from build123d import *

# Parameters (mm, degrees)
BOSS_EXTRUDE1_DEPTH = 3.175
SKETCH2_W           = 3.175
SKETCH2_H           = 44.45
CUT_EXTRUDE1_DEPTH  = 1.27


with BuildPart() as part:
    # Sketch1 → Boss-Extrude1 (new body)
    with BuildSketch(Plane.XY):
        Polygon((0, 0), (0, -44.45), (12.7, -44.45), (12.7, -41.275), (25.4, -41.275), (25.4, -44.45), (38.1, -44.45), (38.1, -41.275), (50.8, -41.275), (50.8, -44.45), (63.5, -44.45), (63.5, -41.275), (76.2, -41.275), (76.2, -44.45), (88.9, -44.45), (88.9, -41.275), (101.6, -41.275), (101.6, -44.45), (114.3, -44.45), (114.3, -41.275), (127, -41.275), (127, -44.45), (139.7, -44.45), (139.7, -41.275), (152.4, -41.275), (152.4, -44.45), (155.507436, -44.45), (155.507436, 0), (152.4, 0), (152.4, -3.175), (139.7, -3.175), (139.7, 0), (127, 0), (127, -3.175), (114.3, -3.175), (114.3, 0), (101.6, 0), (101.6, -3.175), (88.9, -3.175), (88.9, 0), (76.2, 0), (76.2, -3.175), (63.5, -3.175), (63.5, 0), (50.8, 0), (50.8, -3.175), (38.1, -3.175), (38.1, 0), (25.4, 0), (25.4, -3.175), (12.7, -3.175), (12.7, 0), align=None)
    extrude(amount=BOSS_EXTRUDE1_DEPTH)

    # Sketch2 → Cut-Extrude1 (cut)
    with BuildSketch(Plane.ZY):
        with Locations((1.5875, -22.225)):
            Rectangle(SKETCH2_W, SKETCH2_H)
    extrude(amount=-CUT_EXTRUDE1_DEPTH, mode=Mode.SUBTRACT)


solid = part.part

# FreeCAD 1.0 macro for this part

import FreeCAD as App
import Part
import Sketcher

V = App.Vector
Q = App.Units.Quantity

doc = App.newDocument("Part")
params = doc.addObject("Spreadsheet::Sheet", "Params")
for row, (alias, value) in enumerate([
    ("sketch1_width", "0.5 in"),
    ("sketch1_height", "1.75 in"),
    ("pad1_length", "0.125 in"),
    ("sketch2_width", "1.75 in"),
    ("sketch2_height", "0.125 in"),
    ("pocket1_length", "0.05 in"),
], start=1):
    params.set(f"A{row}", alias)
    params.set(f"B{row}", "=" + value)
    params.setAlias(f"B{row}", alias)

body = doc.addObject("PartDesign::Body", "Body")

sketch1 = body.newObject("Sketcher::SketchObject", "Sketch")
sketch1.AttachmentSupport = (doc.getObject("XY_Plane"), [""])
sketch1.MapMode = "FlatFace"
sketch1.addGeometry(Part.LineSegment(V(0, 0, 0), V(0, -44.5, 0)), False)
sketch1.addGeometry(Part.LineSegment(V(0, -44.5, 0), V(12.7, -44.5, 0)), False)
sketch1.addGeometry(Part.LineSegment(V(12.7, -44.5, 0), V(12.7, -41.3, 0)), False)
sketch1.addGeometry(Part.LineSegment(V(12.7, -41.3, 0), V(25.4, -41.3, 0)), False)
sketch1.addGeometry(Part.LineSegment(V(25.4, -41.3, 0), V(25.4, -44.5, 0)), False)
sketch1.addGeometry(Part.LineSegment(V(25.4, -44.5, 0), V(38.1, -44.5, 0)), False)
sketch1.addGeometry(Part.LineSegment(V(38.1, -44.5, 0), V(38.1, -41.3, 0)), False)
sketch1.addGeometry(Part.LineSegment(V(38.1, -41.3, 0), V(50.8, -41.3, 0)), False)
sketch1.addGeometry(Part.LineSegment(V(50.8, -41.3, 0), V(50.8, -44.5, 0)), False)
sketch1.addGeometry(Part.LineSegment(V(50.8, -44.5, 0), V(63.5, -44.5, 0)), False)
sketch1.addGeometry(Part.LineSegment(V(63.5, -44.5, 0), V(63.5, -41.3, 0)), False)
sketch1.addGeometry(Part.LineSegment(V(63.5, -41.3, 0), V(76.2, -41.3, 0)), False)
sketch1.addGeometry(Part.LineSegment(V(76.2, -41.3, 0), V(76.2, -44.5, 0)), False)
sketch1.addGeometry(Part.LineSegment(V(76.2, -44.5, 0), V(88.9, -44.5, 0)), False)
sketch1.addGeometry(Part.LineSegment(V(88.9, -44.5, 0), V(88.9, -41.3, 0)), False)
sketch1.addGeometry(Part.LineSegment(V(88.9, -41.3, 0), V(101.6, -41.3, 0)), False)
sketch1.addGeometry(Part.LineSegment(V(101.6, -41.3, 0), V(101.6, -44.5, 0)), False)
sketch1.addGeometry(Part.LineSegment(V(101.6, -44.5, 0), V(114.3, -44.5, 0)), False)
sketch1.addGeometry(Part.LineSegment(V(114.3, -44.5, 0), V(114.3, -41.3, 0)), False)
sketch1.addGeometry(Part.LineSegment(V(114.3, -41.3, 0), V(127, -41.3, 0)), False)
sketch1.addGeometry(Part.LineSegment(V(127, -41.3, 0), V(127, -44.5, 0)), False)
sketch1.addGeometry(Part.LineSegment(V(127, -44.5, 0), V(139.7, -44.5, 0)), False)
sketch1.addGeometry(Part.LineSegment(V(139.7, -44.5, 0), V(139.7, -41.3, 0)), False)
sketch1.addGeometry(Part.LineSegment(V(139.7, -41.3, 0), V(152.4, -41.3, 0)), False)
sketch1.addGeometry(Part.LineSegment(V(152.4, -41.3, 0), V(152.4, -44.5, 0)), False)
sketch1.addGeometry(Part.LineSegment(V(152.4, -44.5, 0), V(155.5, -44.5, 0)), False)
sketch1.addGeometry(Part.LineSegment(V(155.5, -44.5, 0), V(155.5, 0, 0)), False)
sketch1.addGeometry(Part.LineSegment(V(155.5, 0, 0), V(152.4, 0, 0)), False)
sketch1.addGeometry(Part.LineSegment(V(152.4, 0, 0), V(152.4, -3.2, 0)), False)
sketch1.addGeometry(Part.LineSegment(V(152.4, -3.2, 0), V(139.7, -3.2, 0)), False)
sketch1.addGeometry(Part.LineSegment(V(139.7, -3.2, 0), V(139.7, 0, 0)), False)
sketch1.addGeometry(Part.LineSegment(V(139.7, 0, 0), V(127, 0, 0)), False)
sketch1.addGeometry(Part.LineSegment(V(127, 0, 0), V(127, -3.2, 0)), False)
sketch1.addGeometry(Part.LineSegment(V(127, -3.2, 0), V(114.3, -3.2, 0)), False)
sketch1.addGeometry(Part.LineSegment(V(114.3, -3.2, 0), V(114.3, 0, 0)), False)
sketch1.addGeometry(Part.LineSegment(V(114.3, 0, 0), V(101.6, 0, 0)), False)
sketch1.addGeometry(Part.LineSegment(V(101.6, 0, 0), V(101.6, -3.2, 0)), False)
sketch1.addGeometry(Part.LineSegment(V(101.6, -3.2, 0), V(88.9, -3.2, 0)), False)
sketch1.addGeometry(Part.LineSegment(V(88.9, -3.2, 0), V(88.9, 0, 0)), False)
sketch1.addGeometry(Part.LineSegment(V(88.9, 0, 0), V(76.2, 0, 0)), False)
sketch1.addGeometry(Part.LineSegment(V(76.2, 0, 0), V(76.2, -3.2, 0)), False)
sketch1.addGeometry(Part.LineSegment(V(76.2, -3.2, 0), V(63.5, -3.2, 0)), False)
sketch1.addGeometry(Part.LineSegment(V(63.5, -3.2, 0), V(63.5, 0, 0)), False)
sketch1.addGeometry(Part.LineSegment(V(63.5, 0, 0), V(50.8, 0, 0)), False)
sketch1.addGeometry(Part.LineSegment(V(50.8, 0, 0), V(50.8, -3.2, 0)), False)
sketch1.addGeometry(Part.LineSegment(V(50.8, -3.2, 0), V(38.1, -3.2, 0)), False)
sketch1.addGeometry(Part.LineSegment(V(38.1, -3.2, 0), V(38.1, 0, 0)), False)
sketch1.addGeometry(Part.LineSegment(V(38.1, 0, 0), V(25.4, 0, 0)), False)
sketch1.addGeometry(Part.LineSegment(V(25.4, 0, 0), V(25.4, -3.2, 0)), False)
sketch1.addGeometry(Part.LineSegment(V(25.4, -3.2, 0), V(12.7, -3.2, 0)), False)
sketch1.addGeometry(Part.LineSegment(V(12.7, -3.2, 0), V(12.7, 0, 0)), False)
sketch1.addGeometry(Part.LineSegment(V(12.7, 0, 0), V(0, 0, 0)), False)
sketch1.addConstraint(Sketcher.Constraint("Coincident", 0, 2, 1, 1))
sketch1.addConstraint(Sketcher.Constraint("Coincident", 1, 2, 2, 1))
sketch1.addConstraint(Sketcher.Constraint("Coincident", 2, 2, 3, 1))
sketch1.addConstraint(Sketcher.Constraint("Coincident", 3, 2, 4, 1))
sketch1.addConstraint(Sketcher.Constraint("Coincident", 4, 2, 5, 1))
sketch1.addConstraint(Sketcher.Constraint("Coincident", 5, 2, 6, 1))
sketch1.addConstraint(Sketcher.Constraint("Coincident", 6, 2, 7, 1))
sketch1.addConstraint(Sketcher.Constraint("Coincident", 7, 2, 8, 1))
sketch1.addConstraint(Sketcher.Constraint("Coincident", 8, 2, 9, 1))
sketch1.addConstraint(Sketcher.Constraint("Coincident", 9, 2, 10, 1))
sketch1.addConstraint(Sketcher.Constraint("Coincident", 10, 2, 11, 1))
sketch1.addConstraint(Sketcher.Constraint("Coincident", 11, 2, 12, 1))
sketch1.addConstraint(Sketcher.Constraint("Coincident", 12, 2, 13, 1))
sketch1.addConstraint(Sketcher.Constraint("Coincident", 13, 2, 14, 1))
sketch1.addConstraint(Sketcher.Constraint("Coincident", 14, 2, 15, 1))
sketch1.addConstraint(Sketcher.Constraint("Coincident", 15, 2, 16, 1))
sketch1.addConstraint(Sketcher.Constraint("Coincident", 16, 2, 17, 1))
sketch1.addConstraint(Sketcher.Constraint("Coincident", 17, 2, 18, 1))
sketch1.addConstraint(Sketcher.Constraint("Coincident", 18, 2, 19, 1))
sketch1.addConstraint(Sketcher.Constraint("Coincident", 19, 2, 20, 1))
sketch1.addConstraint(Sketcher.Constraint("Coincident", 20, 2, 21, 1))
sketch1.addConstraint(Sketcher.Constraint("Coincident", 21, 2, 22, 1))
sketch1.addConstraint(Sketcher.Constraint("Coincident", 22, 2, 23, 1))
sketch1.addConstraint(Sketcher.Constraint("Coincident", 23, 2, 24, 1))
sketch1.addConstraint(Sketcher.Constraint("Coincident", 24, 2, 25, 1))
sketch1.addConstraint(Sketcher.Constraint("Coincident", 25, 2, 26, 1))
sketch1.addConstraint(Sketcher.Constraint("Coincident", 26, 2, 27, 1))
sketch1.addConstraint(Sketcher.Constraint("Coincident", 27, 2, 28, 1))
sketch1.addConstraint(Sketcher.Constraint("Coincident", 28, 2, 29, 1))
sketch1.addConstraint(Sketcher.Constraint("Coincident", 29, 2, 30, 1))
sketch1.addConstraint(Sketcher.Constraint("Coincident", 30, 2, 31, 1))
sketch1.addConstraint(Sketcher.Constraint("Coincident", 31, 2, 32, 1))
sketch1.addConstraint(Sketcher.Constraint("Coincident", 32, 2, 33, 1))
sketch1.addConstraint(Sketcher.Constraint("Coincident", 33, 2, 34, 1))
sketch1.addConstraint(Sketcher.Constraint("Coincident", 34, 2, 35, 1))
sketch1.addConstraint(Sketcher.Constraint("Coincident", 35, 2, 36, 1))
sketch1.addConstraint(Sketcher.Constraint("Coincident", 36, 2, 37, 1))
sketch1.addConstraint(Sketcher.Constraint("Coincident", 37, 2, 38, 1))
sketch1.addConstraint(Sketcher.Constraint("Coincident", 38, 2, 39, 1))
sketch1.addConstraint(Sketcher.Constraint("Coincident", 39, 2, 40, 1))
sketch1.addConstraint(Sketcher.Constraint("Coincident", 40, 2, 41, 1))
sketch1.addConstraint(Sketcher.Constraint("Coincident", 41, 2, 42, 1))
sketch1.addConstraint(Sketcher.Constraint("Coincident", 42, 2, 43, 1))
sketch1.addConstraint(Sketcher.Constraint("Coincident", 43, 2, 44, 1))
sketch1.addConstraint(Sketcher.Constraint("Coincident", 44, 2, 45, 1))
sketch1.addConstraint(Sketcher.Constraint("Coincident", 45, 2, 46, 1))
sketch1.addConstraint(Sketcher.Constraint("Coincident", 46, 2, 47, 1))
sketch1.addConstraint(Sketcher.Constraint("Coincident", 47, 2, 48, 1))
sketch1.addConstraint(Sketcher.Constraint("Coincident", 48, 2, 49, 1))
sketch1.addConstraint(Sketcher.Constraint("Coincident", 49, 2, 50, 1))
sketch1.addConstraint(Sketcher.Constraint("Coincident", 50, 2, 51, 1))
sketch1.addConstraint(Sketcher.Constraint("Coincident", 51, 2, 0, 1))
sketch1.addConstraint(Sketcher.Constraint("Vertical", 0))
sketch1.addConstraint(Sketcher.Constraint("Horizontal", 1))
sketch1.addConstraint(Sketcher.Constraint("Vertical", 2))
sketch1.addConstraint(Sketcher.Constraint("Horizontal", 3))
sketch1.addConstraint(Sketcher.Constraint("Vertical", 4))
sketch1.addConstraint(Sketcher.Constraint("Horizontal", 5))
sketch1.addConstraint(Sketcher.Constraint("Vertical", 6))
sketch1.addConstraint(Sketcher.Constraint("Horizontal", 7))
sketch1.addConstraint(Sketcher.Constraint("Vertical", 8))
sketch1.addConstraint(Sketcher.Constraint("Horizontal", 9))
sketch1.addConstraint(Sketcher.Constraint("Vertical", 10))
sketch1.addConstraint(Sketcher.Constraint("Horizontal", 11))
sketch1.addConstraint(Sketcher.Constraint("Vertical", 12))
sketch1.addConstraint(Sketcher.Constraint("Horizontal", 13))
sketch1.addConstraint(Sketcher.Constraint("Vertical", 14))
sketch1.addConstraint(Sketcher.Constraint("Horizontal", 15))
sketch1.addConstraint(Sketcher.Constraint("Vertical", 16))
sketch1.addConstraint(Sketcher.Constraint("Horizontal", 17))
sketch1.addConstraint(Sketcher.Constraint("Vertical", 18))
sketch1.addConstraint(Sketcher.Constraint("Horizontal", 19))
sketch1.addConstraint(Sketcher.Constraint("Vertical", 20))
sketch1.addConstraint(Sketcher.Constraint("Horizontal", 21))
sketch1.addConstraint(Sketcher.Constraint("Vertical", 22))
sketch1.addConstraint(Sketcher.Constraint("Horizontal", 23))
sketch1.addConstraint(Sketcher.Constraint("Vertical", 24))
sketch1.addConstraint(Sketcher.Constraint("Horizontal", 25))
sketch1.addConstraint(Sketcher.Constraint("Vertical", 26))
sketch1.addConstraint(Sketcher.Constraint("Horizontal", 27))
sketch1.addConstraint(Sketcher.Constraint("Vertical", 28))
sketch1.addConstraint(Sketcher.Constraint("Horizontal", 29))
sketch1.addConstraint(Sketcher.Constraint("Vertical", 30))
sketch1.addConstraint(Sketcher.Constraint("Horizontal", 31))
sketch1.addConstraint(Sketcher.Constraint("Vertical", 32))
sketch1.addConstraint(Sketcher.Constraint("Horizontal", 33))
sketch1.addConstraint(Sketcher.Constraint("Vertical", 34))
sketch1.addConstraint(Sketcher.Constraint("Horizontal", 35))
sketch1.addConstraint(Sketcher.Constraint("Vertical", 36))
sketch1.addConstraint(Sketcher.Constraint("Horizontal", 37))
sketch1.addConstraint(Sketcher.Constraint("Vertical", 38))
sketch1.addConstraint(Sketcher.Constraint("Horizontal", 39))
sketch1.addConstraint(Sketcher.Constraint("Vertical", 40))
sketch1.addConstraint(Sketcher.Constraint("Horizontal", 41))
sketch1.addConstraint(Sketcher.Constraint("Vertical", 42))
sketch1.addConstraint(Sketcher.Constraint("Horizontal", 43))
sketch1.addConstraint(Sketcher.Constraint("Vertical", 44))
sketch1.addConstraint(Sketcher.Constraint("Horizontal", 45))
sketch1.addConstraint(Sketcher.Constraint("Vertical", 46))
sketch1.addConstraint(Sketcher.Constraint("Horizontal", 47))
sketch1.addConstraint(Sketcher.Constraint("Vertical", 48))
sketch1.addConstraint(Sketcher.Constraint("Horizontal", 49))
sketch1.addConstraint(Sketcher.Constraint("Vertical", 50))
sketch1.addConstraint(Sketcher.Constraint("Horizontal", 51))
sketch1.addConstraint(Sketcher.Constraint("Coincident", 51, 2, -1, 1))
sketch1.addConstraint(Sketcher.Constraint("PointOnObject", 26, 2, -1))
sketch1.addConstraint(Sketcher.Constraint("PointOnObject", 30, 2, -1))
sketch1.addConstraint(Sketcher.Constraint("PointOnObject", 34, 2, -1))
sketch1.addConstraint(Sketcher.Constraint("PointOnObject", 38, 2, -1))
sketch1.addConstraint(Sketcher.Constraint("PointOnObject", 42, 2, -1))
sketch1.addConstraint(Sketcher.Constraint("PointOnObject", 46, 2, -1))
sketch1.addConstraint(Sketcher.Constraint("Horizontal", 1, 2, 4, 2))
sketch1.addConstraint(Sketcher.Constraint("Horizontal", 3, 2, 6, 2))
sketch1.addConstraint(Sketcher.Constraint("Horizontal", 5, 2, 8, 2))
sketch1.addConstraint(Sketcher.Constraint("Horizontal", 7, 2, 10, 2))
sketch1.addConstraint(Sketcher.Constraint("Horizontal", 9, 2, 12, 2))
sketch1.addConstraint(Sketcher.Constraint("Horizontal", 11, 2, 14, 2))
sketch1.addConstraint(Sketcher.Constraint("Horizontal", 13, 2, 16, 2))
sketch1.addConstraint(Sketcher.Constraint("Horizontal", 15, 2, 18, 2))
sketch1.addConstraint(Sketcher.Constraint("Horizontal", 17, 2, 20, 2))
sketch1.addConstraint(Sketcher.Constraint("Horizontal", 19, 2, 22, 2))
sketch1.addConstraint(Sketcher.Constraint("Horizontal", 21, 2, 24, 2))
sketch1.addConstraint(Sketcher.Constraint("Horizontal", 29, 2, 32, 2))
sketch1.addConstraint(Sketcher.Constraint("Horizontal", 33, 2, 36, 2))
sketch1.addConstraint(Sketcher.Constraint("Horizontal", 37, 2, 40, 2))
sketch1.addConstraint(Sketcher.Constraint("Horizontal", 41, 2, 44, 2))
sketch1.addConstraint(Sketcher.Constraint("Horizontal", 45, 2, 48, 2))
sketch1.addConstraint(Sketcher.Constraint("Vertical", 24, 2, 27, 2))
sketch1.addConstraint(Sketcher.Constraint("Vertical", 22, 2, 29, 2))
sketch1.addConstraint(Sketcher.Constraint("Vertical", 20, 2, 31, 2))
sketch1.addConstraint(Sketcher.Constraint("Vertical", 18, 2, 33, 2))
sketch1.addConstraint(Sketcher.Constraint("Vertical", 16, 2, 35, 2))
sketch1.addConstraint(Sketcher.Constraint("Vertical", 14, 2, 37, 2))
sketch1.addConstraint(Sketcher.Constraint("Vertical", 12, 2, 39, 2))
sketch1.addConstraint(Sketcher.Constraint("Vertical", 10, 2, 41, 2))
sketch1.addConstraint(Sketcher.Constraint("Vertical", 8, 2, 43, 2))
sketch1.addConstraint(Sketcher.Constraint("Vertical", 6, 2, 45, 2))
sketch1.addConstraint(Sketcher.Constraint("Vertical", 4, 2, 47, 2))
sketch1.addConstraint(Sketcher.Constraint("Vertical", 2, 2, 49, 2))
sketch1.addConstraint(Sketcher.Constraint("Equal", 1, 3))
sketch1.addConstraint(Sketcher.Constraint("Equal", 3, 5))
sketch1.addConstraint(Sketcher.Constraint("Equal", 5, 7))
sketch1.addConstraint(Sketcher.Constraint("Equal", 7, 9))
sketch1.addConstraint(Sketcher.Constraint("Equal", 9, 11))
sketch1.addConstraint(Sketcher.Constraint("Equal", 11, 13))
sketch1.addConstraint(Sketcher.Constraint("Equal", 13, 15))
sketch1.addConstraint(Sketcher.Constraint("Equal", 15, 17))
sketch1.addConstraint(Sketcher.Constraint("Equal", 17, 19))
sketch1.addConstraint(Sketcher.Constraint("Equal", 19, 21))
sketch1.addConstraint(Sketcher.Constraint("Equal", 21, 23))
sketch1.addConstraint(Sketcher.Constraint("Equal", 24, 28))
sketch1.addConstraint(Sketcher.Constraint("DistanceX", 1, 1, 1, 2, Q("0.5 in")))
sketch1.addConstraint(Sketcher.Constraint("DistanceY", 0, 2, 0, 1, Q("1.75 in")))
sketch1.addConstraint(Sketcher.Constraint("DistanceY", 23, 2, 28, 2, Q("1.5 in")))
sketch1.addConstraint(Sketcher.Constraint("DistanceX", 25, 1, 25, 2, Q("3.107436 mm")))
sketch1.setExpression("Constraints[151]", "Params.sketch1_width")
sketch1.setExpression("Constraints[152]", "Params.sketch1_height")
pad1 = body.newObject("PartDesign::Pad", "Pad")
pad1.Profile = sketch1
pad1.setExpression("Length", "Params.pad1_length")

sketch2 = body.newObject("Sketcher::SketchObject", "Sketch001")
sketch2.AttachmentSupport = (doc.getObject("YZ_Plane"), [""])
sketch2.MapMode = "FlatFace"
sketch2.addGeometry(Part.LineSegment(V(0, 0, 0), V(-44.5, 0, 0)), False)
sketch2.addGeometry(Part.LineSegment(V(-44.5, 0, 0), V(-44.5, 3.2, 0)), False)
sketch2.addGeometry(Part.LineSegment(V(-44.5, 3.2, 0), V(0, 3.2, 0)), False)
sketch2.addGeometry(Part.LineSegment(V(0, 3.2, 0), V(0, 0, 0)), False)
sketch2.addConstraint(Sketcher.Constraint("Coincident", 0, 2, 1, 1))
sketch2.addConstraint(Sketcher.Constraint("Coincident", 1, 2, 2, 1))
sketch2.addConstraint(Sketcher.Constraint("Coincident", 2, 2, 3, 1))
sketch2.addConstraint(Sketcher.Constraint("Coincident", 3, 2, 0, 1))
sketch2.addConstraint(Sketcher.Constraint("Horizontal", 0))
sketch2.addConstraint(Sketcher.Constraint("Vertical", 1))
sketch2.addConstraint(Sketcher.Constraint("Horizontal", 2))
sketch2.addConstraint(Sketcher.Constraint("Vertical", 3))
sketch2.addConstraint(Sketcher.Constraint("Coincident", 3, 2, -1, 1))
sketch2.addConstraint(Sketcher.Constraint("DistanceX", 0, 2, 0, 1, Q("1.75 in")))
sketch2.addConstraint(Sketcher.Constraint("DistanceY", 1, 1, 1, 2, Q("0.125 in")))
sketch2.setExpression("Constraints[9]", "Params.sketch2_width")
sketch2.setExpression("Constraints[10]", "Params.sketch2_height")
pocket1 = body.newObject("PartDesign::Pocket", "Pocket")
pocket1.Profile = sketch2
pocket1.setExpression("Length", "Params.pocket1_length")
pocket1.Reversed = True

doc.recompute()
